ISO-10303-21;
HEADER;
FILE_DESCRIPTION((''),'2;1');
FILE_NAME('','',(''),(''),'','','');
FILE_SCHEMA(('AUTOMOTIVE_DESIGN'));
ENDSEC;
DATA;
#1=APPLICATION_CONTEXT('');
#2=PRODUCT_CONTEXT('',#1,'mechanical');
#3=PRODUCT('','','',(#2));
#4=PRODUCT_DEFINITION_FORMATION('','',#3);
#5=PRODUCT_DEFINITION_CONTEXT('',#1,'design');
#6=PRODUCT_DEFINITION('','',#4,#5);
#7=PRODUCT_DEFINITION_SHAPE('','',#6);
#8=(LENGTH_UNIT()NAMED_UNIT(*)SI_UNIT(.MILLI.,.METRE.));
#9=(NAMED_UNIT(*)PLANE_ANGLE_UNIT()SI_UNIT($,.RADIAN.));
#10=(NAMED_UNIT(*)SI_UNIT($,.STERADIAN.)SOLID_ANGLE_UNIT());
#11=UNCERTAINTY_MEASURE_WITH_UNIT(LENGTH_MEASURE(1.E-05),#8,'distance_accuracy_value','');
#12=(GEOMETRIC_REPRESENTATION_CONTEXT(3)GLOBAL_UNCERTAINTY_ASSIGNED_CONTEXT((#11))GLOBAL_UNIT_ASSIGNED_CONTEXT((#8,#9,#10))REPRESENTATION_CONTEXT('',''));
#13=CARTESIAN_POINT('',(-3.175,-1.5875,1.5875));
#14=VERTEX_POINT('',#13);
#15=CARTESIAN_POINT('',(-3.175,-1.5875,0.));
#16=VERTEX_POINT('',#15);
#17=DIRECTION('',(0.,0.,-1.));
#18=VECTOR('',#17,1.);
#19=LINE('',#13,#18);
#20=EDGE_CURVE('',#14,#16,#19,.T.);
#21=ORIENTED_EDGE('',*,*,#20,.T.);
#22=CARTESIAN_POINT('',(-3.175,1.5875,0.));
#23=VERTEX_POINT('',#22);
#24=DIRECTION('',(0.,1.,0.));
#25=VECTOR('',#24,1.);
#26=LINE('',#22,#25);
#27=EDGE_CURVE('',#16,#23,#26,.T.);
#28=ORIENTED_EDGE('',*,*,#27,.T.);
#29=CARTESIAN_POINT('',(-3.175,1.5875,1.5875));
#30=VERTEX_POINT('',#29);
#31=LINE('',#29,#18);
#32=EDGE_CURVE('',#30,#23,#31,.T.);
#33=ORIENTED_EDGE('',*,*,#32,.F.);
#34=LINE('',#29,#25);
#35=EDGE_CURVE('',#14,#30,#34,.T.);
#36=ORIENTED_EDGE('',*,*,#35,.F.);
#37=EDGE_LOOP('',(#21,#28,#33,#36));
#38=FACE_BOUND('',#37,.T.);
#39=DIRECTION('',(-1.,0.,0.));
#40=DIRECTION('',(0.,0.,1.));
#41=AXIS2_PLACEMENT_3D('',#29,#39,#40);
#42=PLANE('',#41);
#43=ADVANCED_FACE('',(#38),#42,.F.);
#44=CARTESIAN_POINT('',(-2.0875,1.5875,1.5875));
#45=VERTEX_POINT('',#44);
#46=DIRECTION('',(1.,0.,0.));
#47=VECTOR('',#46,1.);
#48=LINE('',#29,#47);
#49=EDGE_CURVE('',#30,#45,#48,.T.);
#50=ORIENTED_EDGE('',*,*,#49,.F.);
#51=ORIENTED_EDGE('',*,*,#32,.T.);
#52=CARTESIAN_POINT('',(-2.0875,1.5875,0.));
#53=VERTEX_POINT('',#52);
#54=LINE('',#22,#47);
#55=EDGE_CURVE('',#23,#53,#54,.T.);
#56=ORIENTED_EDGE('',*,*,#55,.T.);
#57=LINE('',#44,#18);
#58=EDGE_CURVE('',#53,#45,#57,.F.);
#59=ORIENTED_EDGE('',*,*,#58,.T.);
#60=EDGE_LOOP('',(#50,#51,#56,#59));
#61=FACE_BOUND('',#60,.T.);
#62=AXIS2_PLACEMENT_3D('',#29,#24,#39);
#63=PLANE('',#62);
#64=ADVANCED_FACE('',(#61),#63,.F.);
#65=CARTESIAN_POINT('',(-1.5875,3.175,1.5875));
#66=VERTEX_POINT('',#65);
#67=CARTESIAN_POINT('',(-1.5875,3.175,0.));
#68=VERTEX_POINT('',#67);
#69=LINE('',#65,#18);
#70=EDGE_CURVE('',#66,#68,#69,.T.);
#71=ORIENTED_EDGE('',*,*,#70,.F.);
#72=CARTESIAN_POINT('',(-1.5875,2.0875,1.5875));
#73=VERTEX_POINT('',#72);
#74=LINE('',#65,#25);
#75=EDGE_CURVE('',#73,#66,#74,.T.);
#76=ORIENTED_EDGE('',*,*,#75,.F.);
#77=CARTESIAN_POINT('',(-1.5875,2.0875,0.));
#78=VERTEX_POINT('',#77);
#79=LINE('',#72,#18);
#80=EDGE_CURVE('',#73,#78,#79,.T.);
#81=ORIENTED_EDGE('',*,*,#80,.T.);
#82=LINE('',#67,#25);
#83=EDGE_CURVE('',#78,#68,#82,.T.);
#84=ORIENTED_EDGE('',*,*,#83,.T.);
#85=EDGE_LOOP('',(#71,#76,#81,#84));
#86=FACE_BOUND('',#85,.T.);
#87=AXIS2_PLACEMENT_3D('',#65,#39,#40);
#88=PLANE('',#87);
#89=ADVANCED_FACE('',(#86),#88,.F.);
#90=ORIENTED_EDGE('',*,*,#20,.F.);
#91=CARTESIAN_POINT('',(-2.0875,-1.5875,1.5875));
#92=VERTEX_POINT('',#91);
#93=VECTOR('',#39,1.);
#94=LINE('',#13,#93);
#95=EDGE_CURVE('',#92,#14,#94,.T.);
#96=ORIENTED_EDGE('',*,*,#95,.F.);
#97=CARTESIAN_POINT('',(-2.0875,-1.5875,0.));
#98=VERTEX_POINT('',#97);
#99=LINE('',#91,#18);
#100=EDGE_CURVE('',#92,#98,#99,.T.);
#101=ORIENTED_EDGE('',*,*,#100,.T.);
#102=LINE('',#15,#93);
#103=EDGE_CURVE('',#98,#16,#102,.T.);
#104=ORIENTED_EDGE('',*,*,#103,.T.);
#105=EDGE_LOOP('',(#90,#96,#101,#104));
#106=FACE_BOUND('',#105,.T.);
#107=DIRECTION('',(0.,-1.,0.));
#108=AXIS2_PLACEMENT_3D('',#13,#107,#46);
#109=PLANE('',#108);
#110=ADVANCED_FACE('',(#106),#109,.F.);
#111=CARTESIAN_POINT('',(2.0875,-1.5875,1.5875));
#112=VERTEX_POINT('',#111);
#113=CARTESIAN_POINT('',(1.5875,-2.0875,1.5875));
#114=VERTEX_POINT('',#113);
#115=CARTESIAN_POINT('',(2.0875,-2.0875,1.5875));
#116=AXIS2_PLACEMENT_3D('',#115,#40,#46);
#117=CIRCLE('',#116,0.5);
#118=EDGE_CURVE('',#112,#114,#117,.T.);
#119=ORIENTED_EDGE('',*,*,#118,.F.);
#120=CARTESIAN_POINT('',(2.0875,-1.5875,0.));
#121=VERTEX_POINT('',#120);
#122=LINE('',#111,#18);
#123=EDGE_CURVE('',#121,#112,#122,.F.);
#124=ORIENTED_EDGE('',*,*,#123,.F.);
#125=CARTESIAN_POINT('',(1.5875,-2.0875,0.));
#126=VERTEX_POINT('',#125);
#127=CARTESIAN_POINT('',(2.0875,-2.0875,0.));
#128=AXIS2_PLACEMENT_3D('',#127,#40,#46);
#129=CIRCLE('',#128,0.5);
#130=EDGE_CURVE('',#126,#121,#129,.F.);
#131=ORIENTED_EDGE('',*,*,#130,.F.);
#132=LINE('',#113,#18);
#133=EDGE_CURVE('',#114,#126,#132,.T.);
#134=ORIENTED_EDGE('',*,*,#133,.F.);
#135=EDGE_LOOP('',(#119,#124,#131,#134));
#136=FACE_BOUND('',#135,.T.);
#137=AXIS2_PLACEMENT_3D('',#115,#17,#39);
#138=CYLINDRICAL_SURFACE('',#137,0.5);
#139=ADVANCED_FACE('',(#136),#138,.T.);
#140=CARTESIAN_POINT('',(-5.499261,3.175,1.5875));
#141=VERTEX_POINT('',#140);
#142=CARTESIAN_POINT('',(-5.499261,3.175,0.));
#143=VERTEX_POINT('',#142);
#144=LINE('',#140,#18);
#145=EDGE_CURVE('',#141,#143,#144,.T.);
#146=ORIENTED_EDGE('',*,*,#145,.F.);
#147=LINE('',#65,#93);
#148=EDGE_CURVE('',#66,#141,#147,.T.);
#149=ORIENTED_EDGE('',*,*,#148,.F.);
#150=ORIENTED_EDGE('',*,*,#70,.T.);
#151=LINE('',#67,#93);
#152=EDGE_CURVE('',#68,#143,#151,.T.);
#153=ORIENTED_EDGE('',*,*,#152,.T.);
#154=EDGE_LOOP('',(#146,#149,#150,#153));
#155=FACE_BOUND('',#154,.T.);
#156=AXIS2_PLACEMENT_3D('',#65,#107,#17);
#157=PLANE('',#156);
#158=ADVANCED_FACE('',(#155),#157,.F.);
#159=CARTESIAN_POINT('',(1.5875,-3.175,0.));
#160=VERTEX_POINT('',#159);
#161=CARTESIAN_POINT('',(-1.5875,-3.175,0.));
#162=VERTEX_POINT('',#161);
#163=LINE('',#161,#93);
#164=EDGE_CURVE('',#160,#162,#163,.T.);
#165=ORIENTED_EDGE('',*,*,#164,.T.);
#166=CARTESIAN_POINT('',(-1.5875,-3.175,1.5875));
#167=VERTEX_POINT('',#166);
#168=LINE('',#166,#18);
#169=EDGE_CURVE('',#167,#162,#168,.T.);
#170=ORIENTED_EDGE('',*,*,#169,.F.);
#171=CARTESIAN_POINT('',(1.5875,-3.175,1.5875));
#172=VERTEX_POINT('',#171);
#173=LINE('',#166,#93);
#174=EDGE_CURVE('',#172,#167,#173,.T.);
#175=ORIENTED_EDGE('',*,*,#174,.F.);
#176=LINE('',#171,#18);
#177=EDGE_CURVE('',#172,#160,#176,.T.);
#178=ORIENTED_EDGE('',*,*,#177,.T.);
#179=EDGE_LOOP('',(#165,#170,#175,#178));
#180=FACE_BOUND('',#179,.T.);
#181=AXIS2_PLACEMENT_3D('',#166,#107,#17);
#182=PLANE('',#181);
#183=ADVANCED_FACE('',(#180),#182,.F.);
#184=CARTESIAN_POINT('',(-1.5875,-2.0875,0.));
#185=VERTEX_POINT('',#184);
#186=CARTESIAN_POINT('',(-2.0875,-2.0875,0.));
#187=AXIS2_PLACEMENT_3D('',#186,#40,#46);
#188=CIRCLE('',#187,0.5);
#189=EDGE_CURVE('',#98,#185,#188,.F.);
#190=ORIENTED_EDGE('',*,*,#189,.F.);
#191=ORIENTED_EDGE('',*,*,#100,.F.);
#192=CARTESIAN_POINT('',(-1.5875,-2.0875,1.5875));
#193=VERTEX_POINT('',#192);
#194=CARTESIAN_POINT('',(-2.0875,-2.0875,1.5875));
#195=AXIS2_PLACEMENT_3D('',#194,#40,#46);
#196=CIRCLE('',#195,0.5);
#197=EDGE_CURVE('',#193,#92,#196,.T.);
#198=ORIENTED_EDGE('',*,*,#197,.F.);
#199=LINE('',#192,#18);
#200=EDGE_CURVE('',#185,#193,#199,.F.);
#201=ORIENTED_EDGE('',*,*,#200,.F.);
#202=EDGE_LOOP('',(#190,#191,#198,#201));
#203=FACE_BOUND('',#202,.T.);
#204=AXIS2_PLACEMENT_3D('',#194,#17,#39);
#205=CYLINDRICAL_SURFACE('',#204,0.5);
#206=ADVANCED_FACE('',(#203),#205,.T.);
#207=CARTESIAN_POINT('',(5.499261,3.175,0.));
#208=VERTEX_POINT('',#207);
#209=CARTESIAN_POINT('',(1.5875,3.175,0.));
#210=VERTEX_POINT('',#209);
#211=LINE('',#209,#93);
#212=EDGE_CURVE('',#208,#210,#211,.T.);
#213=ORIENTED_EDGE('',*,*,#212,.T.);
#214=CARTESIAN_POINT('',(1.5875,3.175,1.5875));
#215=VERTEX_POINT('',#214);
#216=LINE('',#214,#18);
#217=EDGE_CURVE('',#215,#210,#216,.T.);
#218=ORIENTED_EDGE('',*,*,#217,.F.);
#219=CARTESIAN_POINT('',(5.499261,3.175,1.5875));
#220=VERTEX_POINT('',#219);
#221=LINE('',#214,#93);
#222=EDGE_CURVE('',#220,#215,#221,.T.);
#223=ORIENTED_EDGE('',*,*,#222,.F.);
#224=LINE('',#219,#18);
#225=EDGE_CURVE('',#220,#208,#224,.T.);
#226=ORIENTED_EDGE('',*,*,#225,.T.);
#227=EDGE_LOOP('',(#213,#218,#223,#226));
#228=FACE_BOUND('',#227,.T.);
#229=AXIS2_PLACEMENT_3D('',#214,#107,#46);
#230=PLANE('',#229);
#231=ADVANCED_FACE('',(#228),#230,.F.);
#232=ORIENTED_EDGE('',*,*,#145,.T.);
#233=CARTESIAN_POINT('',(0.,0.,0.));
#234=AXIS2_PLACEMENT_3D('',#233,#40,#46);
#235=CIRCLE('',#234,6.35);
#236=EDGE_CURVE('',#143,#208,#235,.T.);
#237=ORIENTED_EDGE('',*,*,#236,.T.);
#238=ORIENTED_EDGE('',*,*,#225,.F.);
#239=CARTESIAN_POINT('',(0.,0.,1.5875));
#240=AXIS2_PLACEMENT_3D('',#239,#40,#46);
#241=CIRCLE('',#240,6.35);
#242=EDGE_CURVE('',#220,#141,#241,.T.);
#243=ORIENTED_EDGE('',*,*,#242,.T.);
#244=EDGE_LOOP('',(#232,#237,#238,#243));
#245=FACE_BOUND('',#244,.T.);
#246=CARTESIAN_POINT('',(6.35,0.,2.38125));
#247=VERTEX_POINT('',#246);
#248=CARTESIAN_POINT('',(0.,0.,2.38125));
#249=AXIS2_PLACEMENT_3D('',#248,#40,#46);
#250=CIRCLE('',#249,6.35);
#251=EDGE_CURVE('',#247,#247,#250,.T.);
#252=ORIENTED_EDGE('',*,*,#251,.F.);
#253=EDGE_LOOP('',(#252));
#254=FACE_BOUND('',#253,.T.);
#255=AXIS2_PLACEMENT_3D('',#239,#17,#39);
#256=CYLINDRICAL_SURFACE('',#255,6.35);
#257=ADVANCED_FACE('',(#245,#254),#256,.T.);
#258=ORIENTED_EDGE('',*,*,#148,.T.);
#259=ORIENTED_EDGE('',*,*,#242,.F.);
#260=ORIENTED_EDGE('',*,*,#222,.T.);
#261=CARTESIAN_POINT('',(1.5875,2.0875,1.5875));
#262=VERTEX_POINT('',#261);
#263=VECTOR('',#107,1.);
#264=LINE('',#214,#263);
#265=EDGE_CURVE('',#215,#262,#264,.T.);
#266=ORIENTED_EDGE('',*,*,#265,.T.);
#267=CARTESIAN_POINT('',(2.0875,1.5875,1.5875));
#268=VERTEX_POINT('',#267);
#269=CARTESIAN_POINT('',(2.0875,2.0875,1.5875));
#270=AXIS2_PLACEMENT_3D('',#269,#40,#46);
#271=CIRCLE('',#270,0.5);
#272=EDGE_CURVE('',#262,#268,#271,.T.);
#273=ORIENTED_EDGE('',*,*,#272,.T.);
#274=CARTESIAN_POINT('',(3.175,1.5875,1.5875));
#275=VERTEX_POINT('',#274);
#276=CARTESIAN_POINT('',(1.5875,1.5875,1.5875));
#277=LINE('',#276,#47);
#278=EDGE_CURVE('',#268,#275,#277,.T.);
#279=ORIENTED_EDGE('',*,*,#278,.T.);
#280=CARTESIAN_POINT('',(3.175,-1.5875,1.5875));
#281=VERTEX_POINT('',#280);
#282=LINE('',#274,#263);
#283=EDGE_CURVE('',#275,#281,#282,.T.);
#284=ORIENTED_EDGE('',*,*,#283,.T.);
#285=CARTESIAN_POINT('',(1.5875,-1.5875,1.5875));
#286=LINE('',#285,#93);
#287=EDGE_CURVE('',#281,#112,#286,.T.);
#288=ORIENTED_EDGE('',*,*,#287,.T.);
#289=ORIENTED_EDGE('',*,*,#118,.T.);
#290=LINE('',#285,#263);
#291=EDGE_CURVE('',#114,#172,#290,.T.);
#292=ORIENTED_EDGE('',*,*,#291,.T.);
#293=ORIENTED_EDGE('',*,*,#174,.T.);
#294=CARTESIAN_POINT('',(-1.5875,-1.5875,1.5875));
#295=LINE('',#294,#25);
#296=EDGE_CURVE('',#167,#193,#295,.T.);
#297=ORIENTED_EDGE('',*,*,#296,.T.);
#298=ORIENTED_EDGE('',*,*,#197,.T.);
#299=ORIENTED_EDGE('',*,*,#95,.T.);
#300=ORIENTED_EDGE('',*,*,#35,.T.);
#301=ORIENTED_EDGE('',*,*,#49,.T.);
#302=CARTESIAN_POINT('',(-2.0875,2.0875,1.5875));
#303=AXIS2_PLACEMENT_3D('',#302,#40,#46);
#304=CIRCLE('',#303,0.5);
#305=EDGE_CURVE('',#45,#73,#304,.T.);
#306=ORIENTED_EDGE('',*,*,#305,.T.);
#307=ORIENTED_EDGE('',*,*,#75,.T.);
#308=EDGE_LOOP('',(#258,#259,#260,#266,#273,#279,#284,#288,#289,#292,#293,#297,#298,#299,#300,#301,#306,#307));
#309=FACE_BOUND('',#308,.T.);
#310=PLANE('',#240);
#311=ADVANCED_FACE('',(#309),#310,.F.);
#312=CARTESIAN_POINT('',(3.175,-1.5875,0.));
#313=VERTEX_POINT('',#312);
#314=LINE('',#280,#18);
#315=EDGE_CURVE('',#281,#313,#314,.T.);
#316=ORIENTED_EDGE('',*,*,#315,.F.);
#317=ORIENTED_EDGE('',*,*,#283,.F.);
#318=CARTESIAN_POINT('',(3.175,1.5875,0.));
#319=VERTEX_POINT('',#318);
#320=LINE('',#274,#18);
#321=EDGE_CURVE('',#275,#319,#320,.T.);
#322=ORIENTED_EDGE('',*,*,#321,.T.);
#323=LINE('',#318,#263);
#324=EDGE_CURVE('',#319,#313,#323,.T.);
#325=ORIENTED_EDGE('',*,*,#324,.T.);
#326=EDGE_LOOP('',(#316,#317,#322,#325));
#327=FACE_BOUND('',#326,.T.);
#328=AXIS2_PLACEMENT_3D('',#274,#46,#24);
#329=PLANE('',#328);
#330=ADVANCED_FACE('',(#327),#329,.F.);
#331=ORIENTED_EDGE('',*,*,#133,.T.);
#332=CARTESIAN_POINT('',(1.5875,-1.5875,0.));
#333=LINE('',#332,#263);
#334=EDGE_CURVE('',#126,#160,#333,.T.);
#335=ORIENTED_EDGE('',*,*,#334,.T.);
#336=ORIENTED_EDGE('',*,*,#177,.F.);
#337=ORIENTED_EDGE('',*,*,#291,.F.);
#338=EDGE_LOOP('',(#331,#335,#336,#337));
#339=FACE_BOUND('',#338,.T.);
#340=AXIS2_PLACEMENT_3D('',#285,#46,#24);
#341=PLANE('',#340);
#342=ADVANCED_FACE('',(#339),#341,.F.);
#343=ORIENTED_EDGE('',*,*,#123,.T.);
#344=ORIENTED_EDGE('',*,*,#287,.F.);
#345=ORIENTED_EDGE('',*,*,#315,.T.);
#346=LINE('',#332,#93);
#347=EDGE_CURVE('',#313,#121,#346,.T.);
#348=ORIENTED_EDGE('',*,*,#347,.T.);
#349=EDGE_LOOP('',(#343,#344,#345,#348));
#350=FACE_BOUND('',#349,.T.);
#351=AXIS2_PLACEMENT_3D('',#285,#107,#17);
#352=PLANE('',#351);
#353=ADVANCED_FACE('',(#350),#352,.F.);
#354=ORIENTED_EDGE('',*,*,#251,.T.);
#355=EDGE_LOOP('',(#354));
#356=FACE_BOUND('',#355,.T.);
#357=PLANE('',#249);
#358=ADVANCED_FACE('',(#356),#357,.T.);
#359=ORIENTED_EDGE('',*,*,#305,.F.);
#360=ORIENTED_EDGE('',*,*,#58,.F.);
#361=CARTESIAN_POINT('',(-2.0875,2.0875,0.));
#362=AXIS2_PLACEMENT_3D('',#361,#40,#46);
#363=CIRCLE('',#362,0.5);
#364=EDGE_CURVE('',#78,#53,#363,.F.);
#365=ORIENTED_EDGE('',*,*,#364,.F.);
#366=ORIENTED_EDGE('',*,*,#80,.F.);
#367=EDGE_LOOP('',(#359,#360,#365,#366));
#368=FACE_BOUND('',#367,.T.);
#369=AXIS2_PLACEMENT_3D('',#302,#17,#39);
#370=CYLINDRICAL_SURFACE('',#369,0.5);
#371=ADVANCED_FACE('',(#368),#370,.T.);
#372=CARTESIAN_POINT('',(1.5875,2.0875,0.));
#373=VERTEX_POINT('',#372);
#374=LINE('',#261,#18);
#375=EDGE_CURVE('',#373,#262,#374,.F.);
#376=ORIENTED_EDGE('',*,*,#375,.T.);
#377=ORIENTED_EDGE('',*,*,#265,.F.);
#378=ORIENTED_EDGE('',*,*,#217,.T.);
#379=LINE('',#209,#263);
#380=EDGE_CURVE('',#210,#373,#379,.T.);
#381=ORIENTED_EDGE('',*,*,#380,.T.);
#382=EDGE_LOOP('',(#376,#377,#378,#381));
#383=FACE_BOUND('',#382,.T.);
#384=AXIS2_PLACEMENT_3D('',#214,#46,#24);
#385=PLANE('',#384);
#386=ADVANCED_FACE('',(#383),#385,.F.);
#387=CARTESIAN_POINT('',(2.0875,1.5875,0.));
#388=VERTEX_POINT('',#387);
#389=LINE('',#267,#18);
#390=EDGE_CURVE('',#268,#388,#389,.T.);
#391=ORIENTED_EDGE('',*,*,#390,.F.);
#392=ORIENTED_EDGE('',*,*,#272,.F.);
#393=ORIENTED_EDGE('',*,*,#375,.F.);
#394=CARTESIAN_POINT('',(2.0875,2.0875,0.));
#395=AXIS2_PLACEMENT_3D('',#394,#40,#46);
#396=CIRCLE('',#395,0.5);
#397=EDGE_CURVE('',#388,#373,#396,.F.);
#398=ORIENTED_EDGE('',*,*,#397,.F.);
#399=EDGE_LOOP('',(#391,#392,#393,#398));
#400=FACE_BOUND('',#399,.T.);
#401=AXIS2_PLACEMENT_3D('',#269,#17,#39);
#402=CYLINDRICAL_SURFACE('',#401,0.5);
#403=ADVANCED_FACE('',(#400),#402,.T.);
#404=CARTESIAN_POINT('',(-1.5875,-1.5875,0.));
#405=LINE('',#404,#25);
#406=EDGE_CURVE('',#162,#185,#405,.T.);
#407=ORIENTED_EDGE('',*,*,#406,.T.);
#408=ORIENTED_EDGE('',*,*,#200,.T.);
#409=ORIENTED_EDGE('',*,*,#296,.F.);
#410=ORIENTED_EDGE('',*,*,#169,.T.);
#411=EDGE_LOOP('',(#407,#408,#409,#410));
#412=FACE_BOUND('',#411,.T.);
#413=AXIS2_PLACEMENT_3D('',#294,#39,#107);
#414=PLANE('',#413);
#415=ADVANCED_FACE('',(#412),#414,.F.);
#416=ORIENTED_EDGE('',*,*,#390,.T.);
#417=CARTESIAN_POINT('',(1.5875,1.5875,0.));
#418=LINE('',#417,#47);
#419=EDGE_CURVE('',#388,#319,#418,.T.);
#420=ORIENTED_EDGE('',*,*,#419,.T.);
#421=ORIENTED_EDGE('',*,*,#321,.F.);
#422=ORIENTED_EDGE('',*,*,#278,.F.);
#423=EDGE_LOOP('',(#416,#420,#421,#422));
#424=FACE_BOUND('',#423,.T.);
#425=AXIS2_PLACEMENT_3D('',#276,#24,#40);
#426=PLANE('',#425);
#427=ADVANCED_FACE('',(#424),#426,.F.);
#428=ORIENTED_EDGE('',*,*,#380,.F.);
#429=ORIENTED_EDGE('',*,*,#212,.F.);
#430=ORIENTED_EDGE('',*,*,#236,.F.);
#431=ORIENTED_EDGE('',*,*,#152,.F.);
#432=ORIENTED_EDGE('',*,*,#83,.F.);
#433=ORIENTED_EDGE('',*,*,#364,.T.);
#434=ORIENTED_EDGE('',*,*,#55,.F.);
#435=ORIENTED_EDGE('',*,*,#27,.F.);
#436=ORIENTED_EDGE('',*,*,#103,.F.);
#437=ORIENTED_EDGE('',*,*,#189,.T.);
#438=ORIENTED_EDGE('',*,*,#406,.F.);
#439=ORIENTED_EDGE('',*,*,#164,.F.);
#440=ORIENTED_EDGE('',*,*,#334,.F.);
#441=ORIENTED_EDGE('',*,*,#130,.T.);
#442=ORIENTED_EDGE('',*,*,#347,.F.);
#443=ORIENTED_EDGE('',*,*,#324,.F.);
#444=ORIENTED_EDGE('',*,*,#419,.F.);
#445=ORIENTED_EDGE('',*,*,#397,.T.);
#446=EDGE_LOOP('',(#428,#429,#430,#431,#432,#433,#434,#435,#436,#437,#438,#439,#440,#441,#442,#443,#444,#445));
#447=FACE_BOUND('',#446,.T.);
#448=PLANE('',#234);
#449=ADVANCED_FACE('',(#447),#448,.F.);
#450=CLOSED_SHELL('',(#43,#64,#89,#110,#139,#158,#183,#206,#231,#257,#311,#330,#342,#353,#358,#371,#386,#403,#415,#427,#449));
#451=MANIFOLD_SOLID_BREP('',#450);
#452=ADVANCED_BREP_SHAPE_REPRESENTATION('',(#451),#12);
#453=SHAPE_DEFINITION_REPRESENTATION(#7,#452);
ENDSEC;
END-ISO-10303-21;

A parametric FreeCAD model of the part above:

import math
import FreeCAD as App
import Part
import Sketcher
Q = App.Units.Quantity


def edges_at(feature, points):
    """Names of the edges that pass closest to the given points."""
    edges = feature.Shape.Edges
    near = lambda p: min(range(len(edges)), key=lambda i: edges[i].distToShape(Part.Vertex(*p))[0])
    return sorted({f"Edge{near(p) + 1}" for p in points})

doc = App.newDocument("Part")
body = doc.addObject("PartDesign::Body", "Body")

sketch1 = body.newObject("Sketcher::SketchObject", "Sketch")
sketch1.AttachmentSupport = (doc.getObject("XY_Plane"), [""])
sketch1.MapMode = "FlatFace"
sketch1.addGeometry(Part.LineSegment(App.Vector(-1.6, 1.6, 0), App.Vector(-1.6, 3.2, 0)), False)
sketch1.addGeometry(Part.LineSegment(App.Vector(-1.6, 3.2, 0), App.Vector(-5.5, 3.2, 0)), False)
sketch1.addGeometry(Part.ArcOfCircle(Part.Circle(App.Vector(0, 0, 0), App.Vector(0, 0, 1), 6.3), math.radians(150), math.radians(390)), False)
sketch1.addGeometry(Part.LineSegment(App.Vector(5.5, 3.2, 0), App.Vector(1.6, 3.2, 0)), False)
sketch1.addGeometry(Part.LineSegment(App.Vector(1.6, 3.2, 0), App.Vector(1.6, 1.6, 0)), False)
sketch1.addGeometry(Part.LineSegment(App.Vector(1.6, 1.6, 0), App.Vector(3.2, 1.6, 0)), False)
sketch1.addGeometry(Part.LineSegment(App.Vector(3.2, 1.6, 0), App.Vector(3.2, -1.6, 0)), False)
sketch1.addGeometry(Part.LineSegment(App.Vector(3.2, -1.6, 0), App.Vector(1.6, -1.6, 0)), False)
sketch1.addGeometry(Part.LineSegment(App.Vector(1.6, -1.6, 0), App.Vector(1.6, -3.2, 0)), False)
sketch1.addGeometry(Part.LineSegment(App.Vector(1.6, -3.2, 0), App.Vector(-1.6, -3.2, 0)), False)
sketch1.addGeometry(Part.LineSegment(App.Vector(-1.6, -3.2, 0), App.Vector(-1.6, -1.6, 0)), False)
sketch1.addGeometry(Part.LineSegment(App.Vector(-1.6, -1.6, 0), App.Vector(-3.2, -1.6, 0)), False)
sketch1.addGeometry(Part.LineSegment(App.Vector(-3.2, -1.6, 0), App.Vector(-3.2, 1.6, 0)), False)
sketch1.addGeometry(Part.LineSegment(App.Vector(-3.2, 1.6, 0), App.Vector(-1.6, 1.6, 0)), False)
sketch1.addConstraint(Sketcher.Constraint("Coincident", 0, 2, 1, 1))
sketch1.addConstraint(Sketcher.Constraint("Coincident", 1, 2, 2, 1))
sketch1.addConstraint(Sketcher.Constraint("Coincident", 2, 2, 3, 1))
sketch1.addConstraint(Sketcher.Constraint("Coincident", 3, 2, 4, 1))
sketch1.addConstraint(Sketcher.Constraint("Coincident", 4, 2, 5, 1))
sketch1.addConstraint(Sketcher.Constraint("Coincident", 5, 2, 6, 1))
sketch1.addConstraint(Sketcher.Constraint("Coincident", 6, 2, 7, 1))
sketch1.addConstraint(Sketcher.Constraint("Coincident", 7, 2, 8, 1))
sketch1.addConstraint(Sketcher.Constraint("Coincident", 8, 2, 9, 1))
sketch1.addConstraint(Sketcher.Constraint("Coincident", 9, 2, 10, 1))
sketch1.addConstraint(Sketcher.Constraint("Coincident", 10, 2, 11, 1))
sketch1.addConstraint(Sketcher.Constraint("Coincident", 11, 2, 12, 1))
sketch1.addConstraint(Sketcher.Constraint("Coincident", 12, 2, 13, 1))
sketch1.addConstraint(Sketcher.Constraint("Coincident", 13, 2, 0, 1))
sketch1.addConstraint(Sketcher.Constraint("Vertical", 0))
sketch1.addConstraint(Sketcher.Constraint("Horizontal", 1))
sketch1.addConstraint(Sketcher.Constraint("Horizontal", 3))
sketch1.addConstraint(Sketcher.Constraint("Vertical", 4))
sketch1.addConstraint(Sketcher.Constraint("Horizontal", 5))
sketch1.addConstraint(Sketcher.Constraint("Vertical", 6))
sketch1.addConstraint(Sketcher.Constraint("Horizontal", 7))
sketch1.addConstraint(Sketcher.Constraint("Vertical", 8))
sketch1.addConstraint(Sketcher.Constraint("Horizontal", 9))
sketch1.addConstraint(Sketcher.Constraint("Vertical", 10))
sketch1.addConstraint(Sketcher.Constraint("Horizontal", 11))
sketch1.addConstraint(Sketcher.Constraint("Vertical", 12))
sketch1.addConstraint(Sketcher.Constraint("Horizontal", 13))
sketch1.addConstraint(Sketcher.Constraint("Coincident", 2, 3, -1, 1))
sketch1.addConstraint(Sketcher.Constraint("Symmetric", 0, 2, 8, 2, -1, 1))
sketch1.addConstraint(Sketcher.Constraint("Symmetric", 3, 2, 9, 2, -1, 1))
sketch1.addConstraint(Sketcher.Constraint("Symmetric", 5, 2, 11, 2, -1, 1))
sketch1.addConstraint(Sketcher.Constraint("Symmetric", 7, 2, 10, 2, -2))
sketch1.addConstraint(Sketcher.Constraint("Horizontal", 5, 2, 12, 2))
sketch1.addConstraint(Sketcher.Constraint("Equal", 13, 0))
sketch1.addConstraint(Sketcher.Constraint("Equal", 9, 6))
sketch1.addConstraint(Sketcher.Constraint("Radius", 2, Q("0.25 in")))
sketch1.addConstraint(Sketcher.Constraint("DistanceX", 5, 1, 5, 2, Q("0.0625 in")))
sketch1.addConstraint(Sketcher.Constraint("DistanceX", 9, 2, 9, 1, Q("0.125 in")))
pad1 = body.newObject("PartDesign::Pad", "Pad")
pad1.Profile = sketch1
pad1.Length = Q("0.0625 in")

sketch2 = body.newObject("Sketcher::SketchObject", "Sketch001")
sketch2.AttachmentSupport = (doc.getObject("XY_Plane"), [""])
sketch2.MapMode = "FlatFace"
sketch2.AttachmentOffset = App.Placement(App.Vector(0, 0, 0.0625 * 25.4), App.Rotation())
sketch2.addGeometry(Part.Circle(App.Vector(0, 0, 0), App.Vector(0, 0, 1), 6), False)
sketch2.addConstraint(Sketcher.Constraint("Coincident", 0, 3, -1, 1))
sketch2.addConstraint(Sketcher.Constraint("Diameter", 0, Q("0.5 in")))
pad2 = body.newObject("PartDesign::Pad", "Pad001")
pad2.Profile = sketch2
pad2.Length = Q("0.03125 in")
doc.recompute()

fillet = body.newObject("PartDesign::Fillet", "Fillet")
fillet.Base = (pad2, edges_at(pad2, [
    (-1.587, 1.587, 0.794),
    (-1.587, -1.587, 0.794),
    (1.587, -1.587, 0.794),
    (1.587, 1.587, 0.794),
]))
fillet.Radius = 0.5

doc.recompute()
